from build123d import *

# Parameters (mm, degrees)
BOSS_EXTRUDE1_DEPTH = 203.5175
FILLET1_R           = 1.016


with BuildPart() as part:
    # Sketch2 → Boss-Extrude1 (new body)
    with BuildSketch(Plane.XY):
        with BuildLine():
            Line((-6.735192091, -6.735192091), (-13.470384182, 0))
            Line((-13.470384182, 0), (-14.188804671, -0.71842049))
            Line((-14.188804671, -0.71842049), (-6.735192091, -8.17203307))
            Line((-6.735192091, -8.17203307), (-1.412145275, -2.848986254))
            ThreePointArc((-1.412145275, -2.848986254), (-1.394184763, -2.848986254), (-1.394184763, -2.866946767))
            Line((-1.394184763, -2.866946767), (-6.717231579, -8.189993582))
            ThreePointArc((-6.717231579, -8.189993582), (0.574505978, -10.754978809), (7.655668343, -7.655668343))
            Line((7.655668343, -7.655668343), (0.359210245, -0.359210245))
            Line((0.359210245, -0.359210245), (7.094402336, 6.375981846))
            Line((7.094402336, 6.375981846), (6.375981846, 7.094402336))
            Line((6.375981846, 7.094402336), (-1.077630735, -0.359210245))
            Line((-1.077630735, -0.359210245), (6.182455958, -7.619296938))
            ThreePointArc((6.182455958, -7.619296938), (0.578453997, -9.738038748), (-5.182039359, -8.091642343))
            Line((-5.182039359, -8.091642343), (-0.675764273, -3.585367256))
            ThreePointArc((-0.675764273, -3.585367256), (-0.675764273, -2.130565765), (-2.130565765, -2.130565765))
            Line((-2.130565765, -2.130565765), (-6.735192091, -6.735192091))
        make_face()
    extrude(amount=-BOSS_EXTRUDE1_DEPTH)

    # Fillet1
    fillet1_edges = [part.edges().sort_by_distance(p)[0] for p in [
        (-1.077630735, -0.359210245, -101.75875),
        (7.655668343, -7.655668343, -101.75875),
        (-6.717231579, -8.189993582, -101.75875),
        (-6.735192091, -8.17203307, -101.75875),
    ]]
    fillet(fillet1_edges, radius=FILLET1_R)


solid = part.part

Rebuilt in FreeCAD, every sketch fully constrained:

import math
import FreeCAD as App
import Part
import Sketcher

V = App.Vector
Q = App.Units.Quantity


def edges_at(feature, points):
    """Names of the edges that pass closest to the given points."""
    edges = feature.Shape.Edges
    near = lambda p: min(range(len(edges)), key=lambda i: edges[i].distToShape(Part.Vertex(*p))[0])
    return sorted({f"Edge{near(p) + 1}" for p in points})

doc = App.newDocument("Part")
params = doc.addObject("Spreadsheet::Sheet", "Params")
for row, (alias, value) in enumerate([
    ("sketch1_radius", "0.415 in"),
    ("sketch1_radius2", "0.375 in"),
    ("sketch1_length", "0.375 in"),
    ("sketch1_length2", "0.40625 in"),
    ("pad1_length", "8.0125 in"),
    ("fillet_radius", "0.04 in"),
], start=1):
    params.set(f"A{row}", alias)
    params.set(f"B{row}", "=" + value)
    params.setAlias(f"B{row}", alias)

body = doc.addObject("PartDesign::Body", "Body")

# Sketch on XY plane
sketch1 = body.newObject("Sketcher::SketchObject", "Sketch")
sketch1.AttachmentSupport = (doc.getObject("XY_Plane"), [""])
sketch1.MapMode = "FlatFace"
sketch1.addGeometry(Part.LineSegment(V(-6.735192, -6.735192, 0), V(-13.470384, 0, 0)), False)
sketch1.addGeometry(Part.LineSegment(V(-13.470384, 0, 0), V(-14.188805, -0.71842, 0)), False)
sketch1.addGeometry(Part.LineSegment(V(-14.188805, -0.71842, 0), V(-6.735192, -8.172033, 0)), False)
sketch1.addGeometry(Part.LineSegment(V(-6.735192, -8.172033, 0), V(-1.412145, -2.848986, 0)), False)
sketch1.addGeometry(Part.ArcOfCircle(Part.Circle(V(-1.403165, -2.857967, 0), V(0, 0, 1), 0.0127), math.radians(-45.000003), math.radians(135)), False)
sketch1.addGeometry(Part.LineSegment(V(-1.394185, -2.866947, 0), V(-6.717232, -8.189994, 0)), False)
sketch1.addGeometry(Part.ArcOfCircle(Part.Circle(V(0.182906, -0.221255, 0), V(0, 0, 1), 10.541), math.radians(-130.889316), math.radians(-44.852603)), False)
sketch1.addGeometry(Part.LineSegment(V(7.655668, -7.655668, 0), V(0.35921, -0.35921, 0)), False)
sketch1.addGeometry(Part.LineSegment(V(0.35921, -0.35921, 0), V(7.094402, 6.375982, 0)), False)
sketch1.addGeometry(Part.LineSegment(V(7.094402, 6.375982, 0), V(6.375982, 7.094402, 0)), False)
sketch1.addGeometry(Part.LineSegment(V(6.375982, 7.094402, 0), V(-1.077631, -0.35921, 0)), False)
sketch1.addGeometry(Part.LineSegment(V(-1.077631, -0.35921, 0), V(6.182456, -7.619297, 0)), False)
sketch1.addGeometry(Part.ArcOfCircle(Part.Circle(V(0.182906, -0.221255, 0), V(0, 0, 1), 9.525), math.radians(-124.280773), math.radians(-50.959168)), False)
sketch1.addGeometry(Part.LineSegment(V(-5.182039, -8.091642, 0), V(-0.675764, -3.585367, 0)), False)
sketch1.addGeometry(Part.ArcOfCircle(Part.Circle(V(-1.403165, -2.857967, 0), V(0, 0, 1), 1.0287), math.radians(-45), math.radians(135)), False)
sketch1.addGeometry(Part.LineSegment(V(-2.130566, -2.130566, 0), V(-6.735192, -6.735192, 0)), False)
sketch1.addConstraint(Sketcher.Constraint("Coincident", 0, 2, 1, 1))
sketch1.addConstraint(Sketcher.Constraint("Coincident", 1, 2, 2, 1))
sketch1.addConstraint(Sketcher.Constraint("Coincident", 2, 2, 3, 1))
sketch1.addConstraint(Sketcher.Constraint("Tangent", 3, 2, 4, 2))
sketch1.addConstraint(Sketcher.Constraint("Tangent", 4, 1, 5, 1))
sketch1.addConstraint(Sketcher.Constraint("Coincident", 5, 2, 6, 1))
sketch1.addConstraint(Sketcher.Constraint("Coincident", 6, 2, 7, 1))
sketch1.addConstraint(Sketcher.Constraint("Coincident", 7, 2, 8, 1))
sketch1.addConstraint(Sketcher.Constraint("Coincident", 8, 2, 9, 1))
sketch1.addConstraint(Sketcher.Constraint("Coincident", 9, 2, 10, 1))
sketch1.addConstraint(Sketcher.Constraint("Coincident", 10, 2, 11, 1))
sketch1.addConstraint(Sketcher.Constraint("Coincident", 11, 2, 12, 2))
sketch1.addConstraint(Sketcher.Constraint("Coincident", 12, 1, 13, 1))
sketch1.addConstraint(Sketcher.Constraint("Tangent", 13, 2, 14, 1))
sketch1.addConstraint(Sketcher.Constraint("Tangent", 14, 2, 15, 1))
sketch1.addConstraint(Sketcher.Constraint("Coincident", 15, 2, 0, 1))
sketch1.addConstraint(Sketcher.Constraint("Coincident", 12, 3, 6, 3))
sketch1.addConstraint(Sketcher.Constraint("Coincident", 14, 3, 4, 3))
sketch1.addConstraint(Sketcher.Constraint("PointOnObject", 0, 2, -1))
sketch1.addConstraint(Sketcher.Constraint("Perpendicular", 0, 1))
sketch1.addConstraint(Sketcher.Constraint("Perpendicular", 1, 2))
sketch1.addConstraint(Sketcher.Constraint("Perpendicular", 2, 3))
sketch1.addConstraint(Sketcher.Constraint("Parallel", 3, 5))
sketch1.addConstraint(Sketcher.Constraint("Perpendicular", 5, 7))
sketch1.addConstraint(Sketcher.Constraint("Perpendicular", 7, 8))
sketch1.addConstraint(Sketcher.Constraint("Perpendicular", 8, 9))
sketch1.addConstraint(Sketcher.Constraint("Perpendicular", 9, 10))
sketch1.addConstraint(Sketcher.Constraint("Perpendicular", 10, 11))
sketch1.addConstraint(Sketcher.Constraint("Perpendicular", 11, 13))
sketch1.addConstraint(Sketcher.Constraint("Parallel", 13, 15))
sketch1.addConstraint(Sketcher.Constraint("Horizontal", 7, 2, 10, 2))
sketch1.addConstraint(Sketcher.Constraint("Vertical", 2, 2, 15, 2))
sketch1.addConstraint(Sketcher.Constraint("Equal", 3, 5))
sketch1.addConstraint(Sketcher.Constraint("Equal", 0, 8))
sketch1.addConstraint(Sketcher.Constraint("Equal", 1, 9))
sketch1.addConstraint(Sketcher.Constraint("Angle", 0, Q("135 deg")))
sketch1.addConstraint(Sketcher.Constraint("Radius", 6, Q("0.415 in")))
sketch1.addConstraint(Sketcher.Constraint("Radius", 12, Q("0.375 in")))
sketch1.addConstraint(Sketcher.Constraint("Radius", 4, Q("0.0005 in")))
sketch1.addConstraint(Sketcher.Constraint("Radius", 14, Q("0.0405 in")))
sketch1.addConstraint(Sketcher.Constraint("Distance", 0, Q("0.375 in")))
sketch1.addConstraint(Sketcher.Constraint("Distance", 7, Q("0.40625 in")))
sketch1.addConstraint(Sketcher.Constraint("DistanceX", 3, 2, 11, 2, Q("0.299 in")))
sketch1.addConstraint(Sketcher.Constraint("DistanceY", 6, 2, 4, 3, Q("4.797702 mm")))
sketch1.addConstraint(Sketcher.Constraint("DistanceX", 5, 2, -1, 1, Q("6.717232 mm")))
sketch1.addConstraint(Sketcher.Constraint("DistanceX", -1, 1, 6, 2, Q("7.655668 mm")))
sketch1.setExpression("Constraints[36]", "Params.sketch1_radius")
sketch1.setExpression("Constraints[37]", "Params.sketch1_radius2")
sketch1.setExpression("Constraints[40]", "Params.sketch1_length")
sketch1.setExpression("Constraints[41]", "Params.sketch1_length2")
pad1 = body.newObject("PartDesign::Pad", "Pad")
pad1.Profile = sketch1
pad1.setExpression("Length", "Params.pad1_length")
pad1.Reversed = True
doc.recompute()

fillet = body.newObject("PartDesign::Fillet", "Fillet")
fillet.Base = (pad1, edges_at(pad1, [
    (-1.078, -0.359, -101.759),
    (7.656, -7.656, -101.759),
    (-6.717, -8.19, -101.759),
    (-6.735, -8.172, -101.759),
]))
fillet.setExpression("Radius", "Params.fillet_radius")

doc.recompute()
